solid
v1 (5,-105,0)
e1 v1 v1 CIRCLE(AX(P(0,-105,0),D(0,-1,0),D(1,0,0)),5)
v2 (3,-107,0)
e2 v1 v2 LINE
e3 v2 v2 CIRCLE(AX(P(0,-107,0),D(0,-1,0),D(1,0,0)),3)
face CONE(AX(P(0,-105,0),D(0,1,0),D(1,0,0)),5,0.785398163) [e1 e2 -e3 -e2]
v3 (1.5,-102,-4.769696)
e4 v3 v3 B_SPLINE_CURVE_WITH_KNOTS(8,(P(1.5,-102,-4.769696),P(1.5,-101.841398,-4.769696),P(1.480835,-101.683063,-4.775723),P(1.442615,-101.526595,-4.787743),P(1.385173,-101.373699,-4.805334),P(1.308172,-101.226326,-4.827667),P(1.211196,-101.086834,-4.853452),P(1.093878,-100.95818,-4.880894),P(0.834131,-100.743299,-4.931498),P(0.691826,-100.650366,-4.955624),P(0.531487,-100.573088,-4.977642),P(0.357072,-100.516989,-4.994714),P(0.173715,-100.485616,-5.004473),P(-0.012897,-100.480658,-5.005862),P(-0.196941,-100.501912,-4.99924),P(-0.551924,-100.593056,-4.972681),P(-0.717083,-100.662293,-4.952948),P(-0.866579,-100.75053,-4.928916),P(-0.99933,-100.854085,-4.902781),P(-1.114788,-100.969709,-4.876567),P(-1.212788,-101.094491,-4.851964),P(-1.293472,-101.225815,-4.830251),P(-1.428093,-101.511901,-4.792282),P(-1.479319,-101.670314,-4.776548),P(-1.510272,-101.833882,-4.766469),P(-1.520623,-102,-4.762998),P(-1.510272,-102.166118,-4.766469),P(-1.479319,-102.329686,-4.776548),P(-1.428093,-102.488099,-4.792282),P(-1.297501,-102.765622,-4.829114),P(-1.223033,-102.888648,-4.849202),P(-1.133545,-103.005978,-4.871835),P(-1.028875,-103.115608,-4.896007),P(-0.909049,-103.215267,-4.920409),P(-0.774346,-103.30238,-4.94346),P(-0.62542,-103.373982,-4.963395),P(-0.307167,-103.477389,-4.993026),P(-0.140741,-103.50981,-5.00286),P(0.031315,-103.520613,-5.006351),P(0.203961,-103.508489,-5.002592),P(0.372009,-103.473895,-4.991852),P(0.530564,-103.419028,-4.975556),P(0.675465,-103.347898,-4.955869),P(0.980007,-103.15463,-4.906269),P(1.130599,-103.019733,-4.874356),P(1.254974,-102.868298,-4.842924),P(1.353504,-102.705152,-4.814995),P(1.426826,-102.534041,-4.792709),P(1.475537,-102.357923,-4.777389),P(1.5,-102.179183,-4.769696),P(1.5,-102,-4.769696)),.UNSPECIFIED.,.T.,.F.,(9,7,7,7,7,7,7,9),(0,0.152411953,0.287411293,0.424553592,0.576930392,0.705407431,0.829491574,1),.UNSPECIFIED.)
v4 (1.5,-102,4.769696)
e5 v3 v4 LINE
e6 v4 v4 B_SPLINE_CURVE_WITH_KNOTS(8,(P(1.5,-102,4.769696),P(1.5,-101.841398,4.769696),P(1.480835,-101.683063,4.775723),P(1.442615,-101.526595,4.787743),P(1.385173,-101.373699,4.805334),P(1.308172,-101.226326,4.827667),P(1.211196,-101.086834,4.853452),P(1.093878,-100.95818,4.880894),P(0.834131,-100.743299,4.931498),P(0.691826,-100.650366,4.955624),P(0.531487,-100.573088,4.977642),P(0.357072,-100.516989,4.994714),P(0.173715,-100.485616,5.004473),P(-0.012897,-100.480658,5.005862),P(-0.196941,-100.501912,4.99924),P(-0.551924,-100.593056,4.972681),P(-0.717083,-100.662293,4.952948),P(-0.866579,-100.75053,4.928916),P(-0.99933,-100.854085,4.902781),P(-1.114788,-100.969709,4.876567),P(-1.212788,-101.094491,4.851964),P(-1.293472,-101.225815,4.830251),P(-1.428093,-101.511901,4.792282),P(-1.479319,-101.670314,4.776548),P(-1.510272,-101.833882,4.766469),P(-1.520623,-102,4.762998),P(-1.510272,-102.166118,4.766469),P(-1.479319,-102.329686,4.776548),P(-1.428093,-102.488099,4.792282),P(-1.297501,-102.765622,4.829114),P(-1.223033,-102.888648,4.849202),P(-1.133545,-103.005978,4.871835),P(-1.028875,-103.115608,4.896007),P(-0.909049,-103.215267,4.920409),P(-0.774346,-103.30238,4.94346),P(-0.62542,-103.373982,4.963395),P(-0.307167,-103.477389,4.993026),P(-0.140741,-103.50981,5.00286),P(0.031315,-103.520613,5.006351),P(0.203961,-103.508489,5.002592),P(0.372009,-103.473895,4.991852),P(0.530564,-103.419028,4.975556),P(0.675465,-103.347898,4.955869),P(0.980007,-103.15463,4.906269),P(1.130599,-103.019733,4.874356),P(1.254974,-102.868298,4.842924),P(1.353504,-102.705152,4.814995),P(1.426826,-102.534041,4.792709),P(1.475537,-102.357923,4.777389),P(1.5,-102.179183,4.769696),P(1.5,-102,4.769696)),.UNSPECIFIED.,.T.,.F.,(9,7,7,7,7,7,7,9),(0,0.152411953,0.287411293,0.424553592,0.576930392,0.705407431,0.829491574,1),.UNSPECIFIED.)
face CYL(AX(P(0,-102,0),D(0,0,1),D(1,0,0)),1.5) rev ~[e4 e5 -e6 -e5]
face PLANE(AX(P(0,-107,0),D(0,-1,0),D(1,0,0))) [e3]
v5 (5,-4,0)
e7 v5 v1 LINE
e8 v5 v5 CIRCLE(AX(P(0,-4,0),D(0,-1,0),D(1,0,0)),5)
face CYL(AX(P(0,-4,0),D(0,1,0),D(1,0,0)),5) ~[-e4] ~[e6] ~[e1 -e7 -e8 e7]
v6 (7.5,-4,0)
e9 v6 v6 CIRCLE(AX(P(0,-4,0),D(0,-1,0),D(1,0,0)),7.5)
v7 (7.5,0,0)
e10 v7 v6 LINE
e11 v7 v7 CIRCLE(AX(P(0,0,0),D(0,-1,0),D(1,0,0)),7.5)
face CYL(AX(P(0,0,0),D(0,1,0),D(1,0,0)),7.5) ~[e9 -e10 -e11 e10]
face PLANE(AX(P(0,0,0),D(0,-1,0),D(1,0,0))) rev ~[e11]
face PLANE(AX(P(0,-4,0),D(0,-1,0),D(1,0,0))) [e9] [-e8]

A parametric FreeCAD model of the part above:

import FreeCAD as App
import Part
import Sketcher
from FreeCAD import Vector


def edges_at(feature, points):
    """Names of the edges that pass closest to the given points."""
    edges = feature.Shape.Edges
    near = lambda p: min(range(len(edges)), key=lambda i: edges[i].distToShape(Part.Vertex(*p))[0])
    return sorted({f"Edge{near(p) + 1}" for p in points})

doc = App.newDocument("Part")
body = doc.addObject("PartDesign::Body", "Body")

# Sketch on XZ plane
sketch1 = doc.addObject("Sketcher::SketchObject", "Sketch")
body.addObject(sketch1)
sketch1.AttachmentSupport = (doc.XZ_Plane, [""])
sketch1.MapMode = "FlatFace"
sketch1.addGeometry(Part.Circle(Vector(0, 0, 0), Vector(0, 0, 1), 8), False)
sketch1.addConstraint([
    Sketcher.Constraint("Coincident", 0, 3, -1, 1),
    Sketcher.Constraint("Diameter", 0, 15.0),
])
pad1 = doc.addObject("PartDesign::Pad", "Pad")
body.addObject(pad1)
pad1.Profile = sketch1
pad1.Length = 4

# Sketch on XZ plane
sketch2 = doc.addObject("Sketcher::SketchObject", "Sketch001")
body.addObject(sketch2)
sketch2.AttachmentSupport = (doc.XZ_Plane, [""])
sketch2.MapMode = "FlatFace"
sketch2.AttachmentOffset = App.Placement(Vector(0, 0, 4), App.Rotation())
sketch2.addGeometry(Part.Circle(Vector(0, 0, 0), Vector(0, 0, 1), 5), False)
sketch2.addConstraint([
    Sketcher.Constraint("Coincident", 0, 3, -1, 1),
    Sketcher.Constraint("Diameter", 0, 10.0),
])
pad2 = doc.addObject("PartDesign::Pad", "Pad001")
body.addObject(pad2)
pad2.Profile = sketch2
pad2.Length = 103

# Sketch on XY plane
sketch3 = doc.addObject("Sketcher::SketchObject", "Sketch002")
body.addObject(sketch3)
sketch3.AttachmentSupport = (doc.XY_Plane, [""])
sketch3.MapMode = "FlatFace"
sketch3.addGeometry(Part.Circle(Vector(0, -102, 0), Vector(0, 0, 1), 1.5), False)
sketch3.addConstraint([
    Sketcher.Constraint("PointOnObject", 0, 3, -2),
    Sketcher.Constraint("Diameter", 0, 3.0),
    Sketcher.Constraint("DistanceY", 0, 3, -1, 1, 102.0),
])
pocket1 = doc.addObject("PartDesign::Pocket", "Pocket")
body.addObject(pocket1)
pocket1.Profile = sketch3
pocket1.Length = 25
pocket1.Midplane = True
doc.recompute()

chamfer = doc.addObject("PartDesign::Chamfer", "Chamfer")
body.addObject(chamfer)
chamfer.Base = (pocket1, edges_at(pocket1, [(-5, -107, 0)]))
chamfer.Size = 2

doc.recompute()
